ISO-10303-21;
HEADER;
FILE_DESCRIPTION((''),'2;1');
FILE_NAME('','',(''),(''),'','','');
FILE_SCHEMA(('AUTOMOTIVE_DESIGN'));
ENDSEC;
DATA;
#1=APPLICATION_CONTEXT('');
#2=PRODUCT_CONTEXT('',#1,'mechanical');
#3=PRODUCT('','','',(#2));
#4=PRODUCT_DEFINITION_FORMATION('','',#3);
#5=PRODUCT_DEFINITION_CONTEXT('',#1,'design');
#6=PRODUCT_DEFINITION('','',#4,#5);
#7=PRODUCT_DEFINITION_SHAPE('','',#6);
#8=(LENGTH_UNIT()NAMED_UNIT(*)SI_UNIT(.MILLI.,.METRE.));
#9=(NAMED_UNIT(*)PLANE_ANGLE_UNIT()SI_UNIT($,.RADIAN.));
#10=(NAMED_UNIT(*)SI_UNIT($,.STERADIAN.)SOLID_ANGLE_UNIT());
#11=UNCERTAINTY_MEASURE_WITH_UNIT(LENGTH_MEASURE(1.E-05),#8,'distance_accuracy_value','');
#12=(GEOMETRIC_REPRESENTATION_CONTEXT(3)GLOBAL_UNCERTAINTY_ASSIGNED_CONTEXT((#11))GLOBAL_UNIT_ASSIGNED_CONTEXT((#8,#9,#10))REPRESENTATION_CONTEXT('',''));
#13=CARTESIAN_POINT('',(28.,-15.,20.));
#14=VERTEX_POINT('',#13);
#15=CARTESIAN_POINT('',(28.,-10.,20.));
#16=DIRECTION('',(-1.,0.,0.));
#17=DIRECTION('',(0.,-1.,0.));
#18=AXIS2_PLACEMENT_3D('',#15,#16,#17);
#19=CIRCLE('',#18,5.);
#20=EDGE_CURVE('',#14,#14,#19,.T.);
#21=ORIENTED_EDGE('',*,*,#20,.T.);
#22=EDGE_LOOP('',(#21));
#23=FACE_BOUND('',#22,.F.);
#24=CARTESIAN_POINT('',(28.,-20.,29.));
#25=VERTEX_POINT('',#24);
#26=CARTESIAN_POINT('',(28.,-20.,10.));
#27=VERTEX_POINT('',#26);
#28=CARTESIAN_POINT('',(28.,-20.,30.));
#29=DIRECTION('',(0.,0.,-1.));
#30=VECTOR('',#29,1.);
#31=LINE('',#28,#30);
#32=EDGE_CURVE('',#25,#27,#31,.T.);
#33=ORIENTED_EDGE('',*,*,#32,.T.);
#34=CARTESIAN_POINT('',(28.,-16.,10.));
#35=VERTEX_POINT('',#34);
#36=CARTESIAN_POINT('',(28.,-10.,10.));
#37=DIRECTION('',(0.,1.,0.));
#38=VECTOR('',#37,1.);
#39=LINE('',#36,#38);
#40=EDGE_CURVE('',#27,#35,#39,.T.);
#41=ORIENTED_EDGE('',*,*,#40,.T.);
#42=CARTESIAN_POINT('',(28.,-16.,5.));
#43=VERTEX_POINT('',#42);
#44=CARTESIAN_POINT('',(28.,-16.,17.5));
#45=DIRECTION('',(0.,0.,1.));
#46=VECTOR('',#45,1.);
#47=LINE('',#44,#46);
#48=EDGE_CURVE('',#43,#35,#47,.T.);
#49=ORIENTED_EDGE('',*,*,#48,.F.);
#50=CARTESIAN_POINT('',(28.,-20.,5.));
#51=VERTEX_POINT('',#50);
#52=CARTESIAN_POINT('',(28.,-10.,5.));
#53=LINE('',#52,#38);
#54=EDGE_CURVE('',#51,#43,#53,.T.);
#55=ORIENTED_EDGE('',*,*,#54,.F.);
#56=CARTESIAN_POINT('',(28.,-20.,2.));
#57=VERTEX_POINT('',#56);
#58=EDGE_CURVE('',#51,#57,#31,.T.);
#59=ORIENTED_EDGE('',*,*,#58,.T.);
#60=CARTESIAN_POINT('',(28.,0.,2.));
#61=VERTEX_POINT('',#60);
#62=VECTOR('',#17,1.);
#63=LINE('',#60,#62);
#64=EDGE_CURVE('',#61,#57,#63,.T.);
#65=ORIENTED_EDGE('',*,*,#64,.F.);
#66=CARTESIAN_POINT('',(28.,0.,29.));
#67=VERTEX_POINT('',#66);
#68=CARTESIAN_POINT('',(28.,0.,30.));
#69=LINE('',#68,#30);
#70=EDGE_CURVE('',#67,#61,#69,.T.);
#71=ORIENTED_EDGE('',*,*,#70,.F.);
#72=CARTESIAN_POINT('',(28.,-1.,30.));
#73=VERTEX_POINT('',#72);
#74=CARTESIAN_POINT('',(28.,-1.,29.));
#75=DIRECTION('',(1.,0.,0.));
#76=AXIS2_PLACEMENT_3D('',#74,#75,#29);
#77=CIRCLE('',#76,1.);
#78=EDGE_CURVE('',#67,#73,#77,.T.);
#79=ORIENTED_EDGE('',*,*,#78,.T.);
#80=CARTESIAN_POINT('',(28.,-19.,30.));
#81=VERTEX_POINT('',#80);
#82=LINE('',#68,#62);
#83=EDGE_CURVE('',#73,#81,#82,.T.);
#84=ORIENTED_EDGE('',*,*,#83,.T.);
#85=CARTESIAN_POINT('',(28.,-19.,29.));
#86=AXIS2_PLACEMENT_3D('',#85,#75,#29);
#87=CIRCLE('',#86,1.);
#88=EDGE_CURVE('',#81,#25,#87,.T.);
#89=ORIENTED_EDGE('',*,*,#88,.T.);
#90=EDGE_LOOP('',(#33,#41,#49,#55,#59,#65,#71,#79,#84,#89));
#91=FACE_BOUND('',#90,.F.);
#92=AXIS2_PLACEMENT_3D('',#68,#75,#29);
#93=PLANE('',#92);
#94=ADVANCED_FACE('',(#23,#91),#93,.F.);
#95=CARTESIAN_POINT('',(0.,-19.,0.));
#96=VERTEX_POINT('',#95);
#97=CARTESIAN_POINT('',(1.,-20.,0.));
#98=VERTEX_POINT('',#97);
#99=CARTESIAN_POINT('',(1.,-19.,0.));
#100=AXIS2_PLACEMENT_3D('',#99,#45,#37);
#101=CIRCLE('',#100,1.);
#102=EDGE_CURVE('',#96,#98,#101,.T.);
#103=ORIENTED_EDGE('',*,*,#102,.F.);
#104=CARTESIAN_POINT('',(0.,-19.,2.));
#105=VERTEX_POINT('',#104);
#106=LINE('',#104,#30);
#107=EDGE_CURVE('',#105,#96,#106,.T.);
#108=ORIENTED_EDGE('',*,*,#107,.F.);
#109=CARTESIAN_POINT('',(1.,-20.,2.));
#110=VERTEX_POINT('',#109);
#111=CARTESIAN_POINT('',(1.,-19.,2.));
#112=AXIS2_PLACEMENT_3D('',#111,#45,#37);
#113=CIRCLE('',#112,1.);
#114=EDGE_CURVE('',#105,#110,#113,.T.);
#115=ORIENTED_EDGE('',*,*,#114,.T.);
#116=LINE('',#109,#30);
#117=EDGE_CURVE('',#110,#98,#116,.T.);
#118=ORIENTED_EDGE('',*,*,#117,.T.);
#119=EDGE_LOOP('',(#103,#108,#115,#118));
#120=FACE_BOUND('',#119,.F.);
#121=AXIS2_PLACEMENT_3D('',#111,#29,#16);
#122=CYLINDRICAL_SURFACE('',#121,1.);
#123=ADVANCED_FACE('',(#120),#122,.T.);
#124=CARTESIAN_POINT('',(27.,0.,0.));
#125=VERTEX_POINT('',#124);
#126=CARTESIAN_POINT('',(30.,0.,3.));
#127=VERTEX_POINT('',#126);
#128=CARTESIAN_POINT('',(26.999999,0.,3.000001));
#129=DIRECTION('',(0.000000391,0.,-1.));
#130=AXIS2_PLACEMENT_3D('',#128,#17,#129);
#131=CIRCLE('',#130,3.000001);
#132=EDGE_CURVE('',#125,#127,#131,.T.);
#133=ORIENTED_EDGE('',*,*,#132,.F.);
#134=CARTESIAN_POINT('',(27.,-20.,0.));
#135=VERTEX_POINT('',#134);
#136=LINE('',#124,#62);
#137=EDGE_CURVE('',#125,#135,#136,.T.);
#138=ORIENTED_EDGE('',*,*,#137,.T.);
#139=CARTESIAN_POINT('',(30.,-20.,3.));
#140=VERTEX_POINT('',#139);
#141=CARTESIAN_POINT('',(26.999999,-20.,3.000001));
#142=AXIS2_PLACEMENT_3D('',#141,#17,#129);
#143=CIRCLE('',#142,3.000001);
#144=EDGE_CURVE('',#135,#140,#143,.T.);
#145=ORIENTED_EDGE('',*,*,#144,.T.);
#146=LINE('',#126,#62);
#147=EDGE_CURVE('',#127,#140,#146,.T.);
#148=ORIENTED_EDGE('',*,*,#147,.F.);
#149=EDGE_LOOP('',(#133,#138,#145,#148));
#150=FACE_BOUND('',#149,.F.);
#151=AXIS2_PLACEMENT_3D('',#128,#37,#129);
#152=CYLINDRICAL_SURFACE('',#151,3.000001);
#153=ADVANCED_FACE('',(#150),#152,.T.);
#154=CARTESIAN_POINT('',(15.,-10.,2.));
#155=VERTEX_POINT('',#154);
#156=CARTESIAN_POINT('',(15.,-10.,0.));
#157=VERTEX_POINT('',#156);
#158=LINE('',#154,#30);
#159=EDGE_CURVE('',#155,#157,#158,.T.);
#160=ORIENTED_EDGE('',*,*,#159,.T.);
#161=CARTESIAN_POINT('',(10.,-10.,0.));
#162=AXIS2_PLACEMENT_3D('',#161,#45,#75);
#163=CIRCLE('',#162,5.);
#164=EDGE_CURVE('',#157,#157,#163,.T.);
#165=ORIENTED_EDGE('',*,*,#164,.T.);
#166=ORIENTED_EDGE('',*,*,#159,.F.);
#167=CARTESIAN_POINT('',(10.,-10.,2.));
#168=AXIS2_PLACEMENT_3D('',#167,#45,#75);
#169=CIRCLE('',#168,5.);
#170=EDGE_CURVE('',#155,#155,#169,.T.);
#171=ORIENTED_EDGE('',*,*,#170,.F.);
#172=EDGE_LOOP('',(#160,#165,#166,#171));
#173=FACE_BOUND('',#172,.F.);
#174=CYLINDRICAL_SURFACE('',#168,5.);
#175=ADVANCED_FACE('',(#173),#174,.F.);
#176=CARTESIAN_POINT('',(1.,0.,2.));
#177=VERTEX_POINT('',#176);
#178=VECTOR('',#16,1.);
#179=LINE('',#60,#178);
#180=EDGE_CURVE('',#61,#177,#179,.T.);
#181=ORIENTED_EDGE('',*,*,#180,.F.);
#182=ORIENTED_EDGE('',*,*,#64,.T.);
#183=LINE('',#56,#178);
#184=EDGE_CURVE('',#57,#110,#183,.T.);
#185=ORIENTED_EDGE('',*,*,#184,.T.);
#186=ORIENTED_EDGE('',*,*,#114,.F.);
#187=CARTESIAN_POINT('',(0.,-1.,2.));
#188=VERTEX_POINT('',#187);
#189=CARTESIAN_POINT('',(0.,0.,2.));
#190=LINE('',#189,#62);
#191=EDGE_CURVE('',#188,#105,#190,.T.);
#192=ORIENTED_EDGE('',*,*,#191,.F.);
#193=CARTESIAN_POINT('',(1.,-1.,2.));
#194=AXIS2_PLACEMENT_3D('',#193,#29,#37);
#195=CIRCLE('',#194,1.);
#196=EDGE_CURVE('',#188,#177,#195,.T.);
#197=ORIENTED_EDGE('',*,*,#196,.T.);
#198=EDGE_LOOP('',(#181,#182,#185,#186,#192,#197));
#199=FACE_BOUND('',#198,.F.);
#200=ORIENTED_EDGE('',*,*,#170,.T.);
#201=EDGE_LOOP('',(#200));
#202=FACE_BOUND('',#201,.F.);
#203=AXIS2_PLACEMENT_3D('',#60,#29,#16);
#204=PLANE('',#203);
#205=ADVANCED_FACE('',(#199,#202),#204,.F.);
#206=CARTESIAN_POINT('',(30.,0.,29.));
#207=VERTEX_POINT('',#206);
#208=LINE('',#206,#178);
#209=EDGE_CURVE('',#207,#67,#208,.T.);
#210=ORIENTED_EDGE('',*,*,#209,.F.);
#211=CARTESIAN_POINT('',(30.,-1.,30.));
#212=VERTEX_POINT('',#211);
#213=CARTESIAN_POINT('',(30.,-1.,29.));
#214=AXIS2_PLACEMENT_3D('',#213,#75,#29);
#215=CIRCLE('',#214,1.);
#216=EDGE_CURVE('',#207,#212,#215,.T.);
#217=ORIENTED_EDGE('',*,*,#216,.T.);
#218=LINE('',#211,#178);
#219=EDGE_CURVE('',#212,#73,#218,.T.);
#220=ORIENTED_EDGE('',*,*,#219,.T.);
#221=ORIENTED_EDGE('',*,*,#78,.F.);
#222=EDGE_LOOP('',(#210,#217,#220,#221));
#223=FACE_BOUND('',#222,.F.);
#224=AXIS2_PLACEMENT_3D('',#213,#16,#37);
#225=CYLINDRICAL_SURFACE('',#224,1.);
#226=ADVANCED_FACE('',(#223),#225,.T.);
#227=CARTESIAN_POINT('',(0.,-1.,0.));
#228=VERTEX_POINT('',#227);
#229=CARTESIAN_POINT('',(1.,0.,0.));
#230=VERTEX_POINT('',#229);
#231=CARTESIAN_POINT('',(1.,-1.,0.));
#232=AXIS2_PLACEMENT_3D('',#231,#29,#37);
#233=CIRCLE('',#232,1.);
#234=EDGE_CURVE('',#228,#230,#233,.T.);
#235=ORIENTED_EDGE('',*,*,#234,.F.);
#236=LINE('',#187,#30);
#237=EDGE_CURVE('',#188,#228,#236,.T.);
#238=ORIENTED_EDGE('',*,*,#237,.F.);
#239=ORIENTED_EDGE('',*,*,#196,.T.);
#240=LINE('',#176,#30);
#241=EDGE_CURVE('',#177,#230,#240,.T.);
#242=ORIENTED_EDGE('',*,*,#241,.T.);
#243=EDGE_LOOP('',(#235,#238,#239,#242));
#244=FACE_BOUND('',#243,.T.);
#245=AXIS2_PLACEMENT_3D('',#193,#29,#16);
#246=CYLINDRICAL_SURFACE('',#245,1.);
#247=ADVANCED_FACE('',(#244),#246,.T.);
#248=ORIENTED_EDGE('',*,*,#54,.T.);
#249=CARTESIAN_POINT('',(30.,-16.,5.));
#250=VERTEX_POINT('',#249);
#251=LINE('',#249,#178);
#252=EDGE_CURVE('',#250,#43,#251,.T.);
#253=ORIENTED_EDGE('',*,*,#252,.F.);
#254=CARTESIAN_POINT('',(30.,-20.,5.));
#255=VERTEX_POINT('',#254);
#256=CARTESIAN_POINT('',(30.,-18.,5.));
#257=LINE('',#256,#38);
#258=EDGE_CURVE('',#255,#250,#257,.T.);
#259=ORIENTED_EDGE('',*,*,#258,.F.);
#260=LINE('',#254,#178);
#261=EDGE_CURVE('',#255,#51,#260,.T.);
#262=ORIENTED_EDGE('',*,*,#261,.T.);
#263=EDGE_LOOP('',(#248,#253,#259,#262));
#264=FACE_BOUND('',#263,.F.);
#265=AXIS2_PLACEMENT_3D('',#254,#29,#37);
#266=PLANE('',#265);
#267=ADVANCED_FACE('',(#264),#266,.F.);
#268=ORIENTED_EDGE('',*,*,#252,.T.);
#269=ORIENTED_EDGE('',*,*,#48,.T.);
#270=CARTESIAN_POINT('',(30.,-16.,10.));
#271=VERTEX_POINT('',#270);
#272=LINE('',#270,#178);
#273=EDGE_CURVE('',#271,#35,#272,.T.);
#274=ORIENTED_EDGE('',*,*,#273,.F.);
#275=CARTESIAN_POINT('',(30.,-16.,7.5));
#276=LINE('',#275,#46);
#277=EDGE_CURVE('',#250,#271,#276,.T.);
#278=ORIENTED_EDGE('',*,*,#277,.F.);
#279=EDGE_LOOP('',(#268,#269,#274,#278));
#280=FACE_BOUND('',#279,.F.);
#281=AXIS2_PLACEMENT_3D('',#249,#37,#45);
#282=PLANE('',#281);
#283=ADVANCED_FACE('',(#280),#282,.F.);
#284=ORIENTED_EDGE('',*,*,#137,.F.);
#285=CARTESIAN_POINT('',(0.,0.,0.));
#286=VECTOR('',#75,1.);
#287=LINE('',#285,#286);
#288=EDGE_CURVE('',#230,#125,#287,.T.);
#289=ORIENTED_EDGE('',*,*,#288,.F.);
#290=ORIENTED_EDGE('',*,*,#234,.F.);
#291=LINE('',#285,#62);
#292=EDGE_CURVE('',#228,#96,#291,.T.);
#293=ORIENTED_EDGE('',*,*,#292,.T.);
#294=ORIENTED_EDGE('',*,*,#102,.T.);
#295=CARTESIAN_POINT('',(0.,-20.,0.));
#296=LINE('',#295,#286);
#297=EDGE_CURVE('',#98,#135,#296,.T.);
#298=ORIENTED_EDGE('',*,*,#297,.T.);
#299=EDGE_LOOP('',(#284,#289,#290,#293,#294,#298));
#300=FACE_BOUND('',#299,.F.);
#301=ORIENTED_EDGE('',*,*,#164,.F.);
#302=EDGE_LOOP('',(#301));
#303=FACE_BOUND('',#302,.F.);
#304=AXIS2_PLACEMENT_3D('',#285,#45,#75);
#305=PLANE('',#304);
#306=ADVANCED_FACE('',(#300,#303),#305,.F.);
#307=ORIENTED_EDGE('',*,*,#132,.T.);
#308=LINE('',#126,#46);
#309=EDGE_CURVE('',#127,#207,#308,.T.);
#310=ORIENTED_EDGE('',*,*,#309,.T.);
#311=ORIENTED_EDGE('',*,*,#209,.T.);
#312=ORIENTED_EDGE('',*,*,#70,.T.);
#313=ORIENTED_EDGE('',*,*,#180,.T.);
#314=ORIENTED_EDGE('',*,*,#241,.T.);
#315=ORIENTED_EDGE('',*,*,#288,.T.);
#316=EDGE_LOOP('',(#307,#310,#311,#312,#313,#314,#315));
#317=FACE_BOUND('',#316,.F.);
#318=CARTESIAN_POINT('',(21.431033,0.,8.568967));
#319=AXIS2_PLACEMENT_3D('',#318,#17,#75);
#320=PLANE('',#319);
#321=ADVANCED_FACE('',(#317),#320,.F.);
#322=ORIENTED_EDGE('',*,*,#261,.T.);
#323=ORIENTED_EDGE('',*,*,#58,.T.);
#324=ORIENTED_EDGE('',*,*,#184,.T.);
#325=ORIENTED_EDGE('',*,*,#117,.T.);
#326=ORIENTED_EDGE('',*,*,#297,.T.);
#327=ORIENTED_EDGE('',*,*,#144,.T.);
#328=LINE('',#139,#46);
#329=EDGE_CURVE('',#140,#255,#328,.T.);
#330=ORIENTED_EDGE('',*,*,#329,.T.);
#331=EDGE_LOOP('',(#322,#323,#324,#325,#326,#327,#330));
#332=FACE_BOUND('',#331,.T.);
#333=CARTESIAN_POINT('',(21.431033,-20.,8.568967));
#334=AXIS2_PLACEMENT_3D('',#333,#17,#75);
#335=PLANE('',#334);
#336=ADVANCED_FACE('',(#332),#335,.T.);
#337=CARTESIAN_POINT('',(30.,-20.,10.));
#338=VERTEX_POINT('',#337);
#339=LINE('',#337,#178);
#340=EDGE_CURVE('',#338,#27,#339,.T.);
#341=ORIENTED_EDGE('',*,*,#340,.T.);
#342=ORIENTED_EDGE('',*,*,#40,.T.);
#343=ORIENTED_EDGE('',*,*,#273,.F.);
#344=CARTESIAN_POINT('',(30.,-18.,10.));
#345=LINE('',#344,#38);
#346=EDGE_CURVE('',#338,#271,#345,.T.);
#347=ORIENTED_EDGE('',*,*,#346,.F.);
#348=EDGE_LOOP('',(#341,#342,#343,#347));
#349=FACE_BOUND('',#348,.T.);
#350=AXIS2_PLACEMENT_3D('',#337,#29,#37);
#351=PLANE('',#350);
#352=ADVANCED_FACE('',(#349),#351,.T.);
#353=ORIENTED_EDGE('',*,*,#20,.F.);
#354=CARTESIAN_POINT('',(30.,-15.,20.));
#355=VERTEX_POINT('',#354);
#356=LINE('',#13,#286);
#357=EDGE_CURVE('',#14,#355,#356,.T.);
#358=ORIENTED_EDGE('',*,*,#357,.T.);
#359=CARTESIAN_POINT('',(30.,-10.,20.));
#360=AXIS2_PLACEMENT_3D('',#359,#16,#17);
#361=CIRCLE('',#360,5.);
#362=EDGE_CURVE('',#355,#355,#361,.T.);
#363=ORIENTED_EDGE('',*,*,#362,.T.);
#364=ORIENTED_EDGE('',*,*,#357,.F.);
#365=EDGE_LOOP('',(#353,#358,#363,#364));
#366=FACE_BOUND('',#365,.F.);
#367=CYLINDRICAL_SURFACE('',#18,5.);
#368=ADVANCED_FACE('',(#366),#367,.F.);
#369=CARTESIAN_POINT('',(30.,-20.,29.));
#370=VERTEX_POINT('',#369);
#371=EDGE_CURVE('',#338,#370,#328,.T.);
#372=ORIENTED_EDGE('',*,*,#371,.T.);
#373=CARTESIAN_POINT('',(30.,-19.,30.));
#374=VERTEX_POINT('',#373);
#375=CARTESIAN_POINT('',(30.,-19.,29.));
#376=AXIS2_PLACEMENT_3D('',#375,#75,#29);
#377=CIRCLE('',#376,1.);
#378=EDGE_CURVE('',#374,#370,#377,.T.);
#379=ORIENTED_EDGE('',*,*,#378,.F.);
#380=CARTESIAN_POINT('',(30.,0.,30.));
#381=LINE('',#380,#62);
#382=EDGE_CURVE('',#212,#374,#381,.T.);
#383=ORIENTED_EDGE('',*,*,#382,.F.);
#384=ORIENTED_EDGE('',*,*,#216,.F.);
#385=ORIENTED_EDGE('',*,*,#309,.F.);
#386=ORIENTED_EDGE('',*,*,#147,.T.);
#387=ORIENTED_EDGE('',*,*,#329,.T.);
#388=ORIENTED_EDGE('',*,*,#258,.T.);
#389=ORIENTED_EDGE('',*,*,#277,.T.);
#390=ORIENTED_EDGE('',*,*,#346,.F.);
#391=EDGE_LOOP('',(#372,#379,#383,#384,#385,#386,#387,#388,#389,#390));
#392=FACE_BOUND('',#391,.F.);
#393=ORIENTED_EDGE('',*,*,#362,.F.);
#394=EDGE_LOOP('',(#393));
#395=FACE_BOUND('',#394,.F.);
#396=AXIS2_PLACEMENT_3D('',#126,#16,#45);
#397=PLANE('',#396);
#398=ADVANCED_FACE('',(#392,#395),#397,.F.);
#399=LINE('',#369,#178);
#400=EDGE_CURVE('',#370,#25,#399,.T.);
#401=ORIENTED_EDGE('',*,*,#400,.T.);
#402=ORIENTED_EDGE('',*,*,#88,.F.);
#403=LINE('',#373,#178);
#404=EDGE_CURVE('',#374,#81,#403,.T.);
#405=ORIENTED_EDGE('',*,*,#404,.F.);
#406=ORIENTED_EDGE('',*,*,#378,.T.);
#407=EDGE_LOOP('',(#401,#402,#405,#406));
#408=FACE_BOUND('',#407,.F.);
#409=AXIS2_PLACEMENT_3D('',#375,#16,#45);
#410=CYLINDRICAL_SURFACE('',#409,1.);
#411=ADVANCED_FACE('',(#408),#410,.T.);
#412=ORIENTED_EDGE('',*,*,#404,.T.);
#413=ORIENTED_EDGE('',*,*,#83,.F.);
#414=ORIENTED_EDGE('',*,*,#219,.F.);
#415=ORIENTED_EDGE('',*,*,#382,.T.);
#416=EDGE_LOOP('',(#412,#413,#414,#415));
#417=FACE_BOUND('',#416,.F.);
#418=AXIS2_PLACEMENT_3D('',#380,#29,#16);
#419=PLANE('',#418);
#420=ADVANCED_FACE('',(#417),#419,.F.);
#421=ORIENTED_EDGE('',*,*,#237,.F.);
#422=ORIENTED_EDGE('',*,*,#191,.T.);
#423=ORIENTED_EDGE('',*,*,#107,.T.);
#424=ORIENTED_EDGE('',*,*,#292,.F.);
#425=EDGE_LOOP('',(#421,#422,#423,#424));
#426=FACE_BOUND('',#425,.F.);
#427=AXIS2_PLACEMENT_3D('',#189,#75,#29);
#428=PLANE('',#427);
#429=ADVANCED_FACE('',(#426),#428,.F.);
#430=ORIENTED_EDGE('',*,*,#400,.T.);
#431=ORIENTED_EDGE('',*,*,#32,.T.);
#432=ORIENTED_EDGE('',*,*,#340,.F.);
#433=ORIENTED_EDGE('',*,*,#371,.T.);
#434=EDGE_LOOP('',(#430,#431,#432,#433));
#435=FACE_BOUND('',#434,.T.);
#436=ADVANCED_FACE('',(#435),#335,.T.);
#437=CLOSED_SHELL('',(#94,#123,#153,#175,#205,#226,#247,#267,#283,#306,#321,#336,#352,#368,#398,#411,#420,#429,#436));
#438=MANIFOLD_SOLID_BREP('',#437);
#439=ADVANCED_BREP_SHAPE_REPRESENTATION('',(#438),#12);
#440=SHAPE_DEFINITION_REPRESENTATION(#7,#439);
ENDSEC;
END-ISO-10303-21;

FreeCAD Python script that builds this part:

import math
import FreeCAD as App
import Part
import Sketcher


def edges_at(feature, points):
    """Names of the edges that pass closest to the given points."""
    edges = feature.Shape.Edges
    near = lambda p: min(range(len(edges)), key=lambda i: edges[i].distToShape(Part.Vertex(*p))[0])
    return sorted({f"Edge{near(p) + 1}" for p in points})


def add_polygon(sketch, points):
    """Adds a closed chain of lines whose ends are joined by coincident constraints."""
    first, n = sketch.GeometryCount, len(points)
    for a, b in zip(points, points[1:] + points[:1]):
        sketch.addGeometry(Part.LineSegment(App.Vector(*a, 0), App.Vector(*b, 0)), False)
    for i in range(n):
        sketch.addConstraint(Sketcher.Constraint("Coincident", first + i, 2, first + (i + 1) % n, 1))

doc = App.newDocument("Part")
body = doc.addObject("PartDesign::Body", "Body")

sketch1 = doc.addObject("Sketcher::SketchObject", "Sketch")
body.addObject(sketch1)
sketch1.AttachmentSupport = (doc.XZ_Plane, [""])
sketch1.MapMode = "FlatFace"
sketch1.addGeometry([
    Part.LineSegment(App.Vector(0, 2, 0), App.Vector(0, 0, 0)),
    Part.LineSegment(App.Vector(0, 0, 0), App.Vector(27, 0, 0)),
    Part.ArcOfCircle(Part.Circle(App.Vector(27, 3, 0), App.Vector(0, 0, 1), 3), math.radians(-90), math.radians(0)),
    Part.LineSegment(App.Vector(30, 3, 0), App.Vector(30, 30, 0)),
    Part.LineSegment(App.Vector(30, 30, 0), App.Vector(28, 30, 0)),
    Part.LineSegment(App.Vector(28, 30, 0), App.Vector(28, 2, 0)),
    Part.LineSegment(App.Vector(28, 2, 0), App.Vector(0, 2, 0)),
], False)
sketch1.addConstraint([
    Sketcher.Constraint("Coincident", 0, 2, 1, 1),
    Sketcher.Constraint("Tangent", 1, 2, 2, 1),
    Sketcher.Constraint("Tangent", 2, 2, 3, 1),
    Sketcher.Constraint("Coincident", 3, 2, 4, 1),
    Sketcher.Constraint("Coincident", 4, 2, 5, 1),
    Sketcher.Constraint("Coincident", 5, 2, 6, 1),
    Sketcher.Constraint("Coincident", 6, 2, 0, 1),
    Sketcher.Constraint("Vertical", 0),
    Sketcher.Constraint("Horizontal", 1),
    Sketcher.Constraint("Vertical", 3),
    Sketcher.Constraint("Horizontal", 4),
    Sketcher.Constraint("Vertical", 5),
    Sketcher.Constraint("Horizontal", 6),
    Sketcher.Constraint("Coincident", 0, 2, -1, 1),
    Sketcher.Constraint("Equal", 4, 0),
    Sketcher.Constraint("Equal", 1, 3),
    Sketcher.Constraint("Radius", 2, 3.000001),
    Sketcher.Constraint("DistanceX", 1, 1, 1, 2, 27.0),
    Sketcher.Constraint("DistanceX", 4, 2, 4, 1, 2.0),
])
pad1 = doc.addObject("PartDesign::Pad", "Pad")
body.addObject(pad1)
pad1.Profile = sketch1
pad1.Length = 20

sketch2 = doc.addObject("Sketcher::SketchObject", "Sketch001")
body.addObject(sketch2)
sketch2.AttachmentSupport = (doc.YZ_Plane, [""])
sketch2.MapMode = "FlatFace"
sketch2.AttachmentOffset = App.Placement(App.Vector(0, 0, 28), App.Rotation())
sketch2.addGeometry(Part.Circle(App.Vector(-10, 20, 0), App.Vector(0, 0, 1), 5), False)
sketch2.addConstraint([
    Sketcher.Constraint("Diameter", 0, 10.0),
    Sketcher.Constraint("DistanceX", 0, 3, -1, 1, 10.0),
    Sketcher.Constraint("DistanceY", -1, 1, 0, 3, 20.0),
])
pocket1 = doc.addObject("PartDesign::Pocket", "Pocket")
body.addObject(pocket1)
pocket1.Profile = sketch2
pocket1.Type = "ThroughAll"
pocket1.Reversed = True

sketch3 = doc.addObject("Sketcher::SketchObject", "Sketch002")
body.addObject(sketch3)
sketch3.AttachmentSupport = (doc.XY_Plane, [""])
sketch3.MapMode = "FlatFace"
sketch3.AttachmentOffset = App.Placement(App.Vector(0, 0, 2), App.Rotation())
sketch3.addGeometry(Part.Circle(App.Vector(10, -10, 0), App.Vector(0, 0, 1), 5), False)
sketch3.addConstraint([
    Sketcher.Constraint("Diameter", 0, 10.0),
    Sketcher.Constraint("DistanceX", -1, 1, 0, 3, 10.0),
    Sketcher.Constraint("DistanceY", 0, 3, -1, 1, 10.0),
])
pocket2 = doc.addObject("PartDesign::Pocket", "Pocket001")
body.addObject(pocket2)
pocket2.Profile = sketch3
pocket2.Type = "ThroughAll"

sketch4 = doc.addObject("Sketcher::SketchObject", "Sketch003")
body.addObject(sketch4)
sketch4.AttachmentSupport = (doc.YZ_Plane, [""])
sketch4.MapMode = "FlatFace"
sketch4.AttachmentOffset = App.Placement(App.Vector(0, 0, 30), App.Rotation())
add_polygon(sketch4, [(-20, 10), (-20, 5), (-16, 5), (-16, 10)])
sketch4.addConstraint([
    Sketcher.Constraint("Vertical", 0),
    Sketcher.Constraint("Horizontal", 1),
    Sketcher.Constraint("Vertical", 2),
    Sketcher.Constraint("Horizontal", 3),
    Sketcher.Constraint("DistanceX", 1, 1, 1, 2, 4.0),
    Sketcher.Constraint("DistanceY", 0, 2, 0, 1, 5.0),
    Sketcher.Constraint("DistanceX", 0, 2, -1, 1, 20.0),
    Sketcher.Constraint("DistanceY", -1, 1, 0, 2, 5.0),
])
pocket3 = doc.addObject("PartDesign::Pocket", "Pocket002")
body.addObject(pocket3)
pocket3.Profile = sketch4
pocket3.Type = "ThroughAll"
doc.recompute()

fillet = doc.addObject("PartDesign::Fillet", "Fillet")
body.addObject(fillet)
fillet.Base = (pocket3, edges_at(pocket3, [
    (0, -20, 1),
    (0, 0, 1),
    (29, 0, 30),
    (29, -20, 30),
]))
fillet.Radius = 1

doc.recompute()
